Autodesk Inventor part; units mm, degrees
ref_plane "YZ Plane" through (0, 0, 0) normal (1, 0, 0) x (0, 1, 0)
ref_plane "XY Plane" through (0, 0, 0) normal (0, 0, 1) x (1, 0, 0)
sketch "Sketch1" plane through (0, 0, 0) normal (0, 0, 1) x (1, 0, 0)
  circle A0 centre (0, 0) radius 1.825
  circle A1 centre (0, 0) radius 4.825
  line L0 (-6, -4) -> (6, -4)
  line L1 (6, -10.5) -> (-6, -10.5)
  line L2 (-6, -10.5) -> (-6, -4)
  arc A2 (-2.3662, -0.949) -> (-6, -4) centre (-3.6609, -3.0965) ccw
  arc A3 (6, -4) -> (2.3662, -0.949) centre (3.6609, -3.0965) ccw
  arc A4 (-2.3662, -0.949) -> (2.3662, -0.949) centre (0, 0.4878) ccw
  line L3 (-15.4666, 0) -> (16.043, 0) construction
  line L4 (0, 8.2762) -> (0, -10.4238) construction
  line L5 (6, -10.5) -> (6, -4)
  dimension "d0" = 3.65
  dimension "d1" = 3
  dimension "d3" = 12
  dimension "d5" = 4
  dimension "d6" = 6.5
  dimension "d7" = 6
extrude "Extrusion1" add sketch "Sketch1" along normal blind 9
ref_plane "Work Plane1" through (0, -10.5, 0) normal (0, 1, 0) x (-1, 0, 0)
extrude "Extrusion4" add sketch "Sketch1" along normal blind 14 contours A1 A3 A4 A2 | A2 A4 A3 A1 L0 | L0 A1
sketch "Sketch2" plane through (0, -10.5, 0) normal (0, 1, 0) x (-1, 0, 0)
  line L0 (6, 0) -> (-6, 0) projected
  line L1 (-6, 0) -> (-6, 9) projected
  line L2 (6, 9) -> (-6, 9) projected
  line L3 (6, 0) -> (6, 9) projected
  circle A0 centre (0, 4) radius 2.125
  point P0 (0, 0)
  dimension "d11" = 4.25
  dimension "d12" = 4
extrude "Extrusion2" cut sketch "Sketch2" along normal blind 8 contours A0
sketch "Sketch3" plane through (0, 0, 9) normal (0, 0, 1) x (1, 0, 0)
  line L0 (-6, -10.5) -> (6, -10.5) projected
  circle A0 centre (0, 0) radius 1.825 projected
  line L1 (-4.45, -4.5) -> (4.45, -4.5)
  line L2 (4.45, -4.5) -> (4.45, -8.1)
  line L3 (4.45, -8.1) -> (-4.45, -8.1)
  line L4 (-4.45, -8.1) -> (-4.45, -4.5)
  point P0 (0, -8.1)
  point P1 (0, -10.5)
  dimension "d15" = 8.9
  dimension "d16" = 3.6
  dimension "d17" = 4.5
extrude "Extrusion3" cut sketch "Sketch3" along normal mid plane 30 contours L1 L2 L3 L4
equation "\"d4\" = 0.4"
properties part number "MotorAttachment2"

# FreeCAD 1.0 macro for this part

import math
import FreeCAD as App
import Part
import Sketcher
from FreeCAD import Vector
Q = App.Units.Quantity


def add_polygon(sketch, points):
    """Adds a closed chain of lines whose ends are joined by coincident constraints."""
    first, n = sketch.GeometryCount, len(points)
    for a, b in zip(points, points[1:] + points[:1]):
        sketch.addGeometry(Part.LineSegment(App.Vector(*a, 0), App.Vector(*b, 0)), False)
    for i in range(n):
        sketch.addConstraint(Sketcher.Constraint("Coincident", first + i, 2, first + (i + 1) % n, 1))

doc = App.newDocument("Part")
body = doc.addObject("PartDesign::Body", "Body")

sketch1 = body.newObject("Sketcher::SketchObject", "Sketch")
sketch1.AttachmentSupport = (doc.getObject("XY_Plane"), [""])
sketch1.MapMode = "FlatFace"
sketch1.addGeometry([
    Part.ArcOfCircle(Part.Circle(Vector(0, 0, 0), Vector(0, 0, 1), 4.8), math.radians(-10), math.radians(190)),
    Part.ArcOfCircle(Part.Circle(Vector(-3.7, -3.1, 0), Vector(0, 0, 1), 2.5), math.radians(116), math.radians(201)),
    Part.LineSegment(Vector(-6, -4, 0), Vector(-6, -10.5, 0)),
    Part.LineSegment(Vector(-6, -10.5, 0), Vector(6, -10.5, 0)),
    Part.LineSegment(Vector(6, -10.5, 0), Vector(6, -4, 0)),
    Part.ArcOfCircle(Part.Circle(Vector(3.7, -3.1, 0), Vector(0, 0, 1), 2.5), math.radians(-21), math.radians(64)),
    Part.Circle(Vector(0, 0, 0), Vector(0, 0, 1), 1.8),
], False)
sketch1.addConstraint([
    Sketcher.Constraint("Coincident", 0, 2, 1, 1),
    Sketcher.Constraint("Coincident", 1, 2, 2, 1),
    Sketcher.Constraint("Coincident", 2, 2, 3, 1),
    Sketcher.Constraint("Coincident", 3, 2, 4, 1),
    Sketcher.Constraint("Coincident", 4, 2, 5, 1),
    Sketcher.Constraint("Coincident", 5, 2, 0, 1),
    Sketcher.Constraint("Vertical", 2),
    Sketcher.Constraint("Horizontal", 3),
    Sketcher.Constraint("Vertical", 4),
    Sketcher.Constraint("Coincident", 0, 3, -1, 1),
    Sketcher.Constraint("Coincident", 6, 3, -1, 1),
    Sketcher.Constraint("Equal", 1, 5),
    Sketcher.Constraint("Symmetric", 1, 3, 5, 3, -2),
    Sketcher.Constraint("Horizontal", 1, 2, 4, 2),
    Sketcher.Constraint("Diameter", 6, Q("3.65 mm")),
    Sketcher.Constraint("DistanceX", 3, 1, 3, 2, Q("12 mm")),
    Sketcher.Constraint("DistanceY", 2, 2, 2, 1, Q("6.5 mm")),
    Sketcher.Constraint("DistanceY", 1, 2, -1, 1, Q("4 mm")),
    Sketcher.Constraint("Radius", 0, Q("4.825 mm")),
    Sketcher.Constraint("Radius", 1, Q("2.5076 mm")),
    Sketcher.Constraint("DistanceX", 1, 3, -1, 1, Q("3.661 mm")),
])
pad1 = body.newObject("PartDesign::Pad", "Pad")
pad1.Profile = sketch1
pad1.Length = 9

sketch2 = body.newObject("Sketcher::SketchObject", "Sketch001")
sketch2.AttachmentSupport = (doc.getObject("XY_Plane"), [""])
sketch2.MapMode = "FlatFace"
sketch2.addGeometry([
    Part.Circle(Vector(0, 0, 0), Vector(0, 0, 1), 4.8),
    Part.Circle(Vector(0, 0, 0), Vector(0, 0, 1), 1.8),
], False)
sketch2.addConstraint([
    Sketcher.Constraint("Coincident", 0, 3, -1, 1),
    Sketcher.Constraint("Coincident", 1, 3, -1, 1),
    Sketcher.Constraint("Diameter", 1, Q("3.65 mm")),
    Sketcher.Constraint("Diameter", 0, Q("9.65 mm")),
])
pad2 = body.newObject("PartDesign::Pad", "Pad001")
pad2.Profile = sketch2
pad2.Length = 14

sketch3 = body.newObject("Sketcher::SketchObject", "Sketch002")
sketch3.AttachmentSupport = (doc.getObject("XZ_Plane"), [""])
sketch3.MapMode = "FlatFace"
sketch3.AttachmentOffset = App.Placement(Vector(0, 0, 10.5), App.Rotation())
sketch3.addGeometry(Part.Circle(Vector(0, 4, 0), Vector(0, 0, 1), 2.1), False)
sketch3.addConstraint([
    Sketcher.Constraint("PointOnObject", 0, 3, -2),
    Sketcher.Constraint("Diameter", 0, Q("4.25 mm")),
    Sketcher.Constraint("DistanceY", -1, 1, 0, 3, Q("4 mm")),
])
pocket1 = body.newObject("PartDesign::Pocket", "Pocket")
pocket1.Profile = sketch3
pocket1.Length = 8

sketch4 = body.newObject("Sketcher::SketchObject", "Sketch003")
sketch4.AttachmentSupport = (doc.getObject("XY_Plane"), [""])
sketch4.MapMode = "FlatFace"
sketch4.AttachmentOffset = App.Placement(Vector(0, 0, 9), App.Rotation())
add_polygon(sketch4, [(4.5, -4.5), (-4.5, -4.5), (-4.5, -8.1), (4.5, -8.1)])
sketch4.addConstraint([
    Sketcher.Constraint("Horizontal", 0),
    Sketcher.Constraint("Vertical", 1),
    Sketcher.Constraint("Horizontal", 2),
    Sketcher.Constraint("Vertical", 3),
    Sketcher.Constraint("DistanceX", 0, 2, 0, 1, Q("8.9 mm")),
    Sketcher.Constraint("DistanceY", 1, 2, 1, 1, Q("3.6 mm")),
    Sketcher.Constraint("DistanceY", 0, 2, -1, 1, Q("4.5 mm")),
    Sketcher.Constraint("DistanceX", 0, 2, -1, 1, Q("4.45 mm")),
])
pocket2 = body.newObject("PartDesign::Pocket", "Pocket001")
pocket2.Profile = sketch4
pocket2.Length = 30
pocket2.Midplane = True

doc.recompute()
